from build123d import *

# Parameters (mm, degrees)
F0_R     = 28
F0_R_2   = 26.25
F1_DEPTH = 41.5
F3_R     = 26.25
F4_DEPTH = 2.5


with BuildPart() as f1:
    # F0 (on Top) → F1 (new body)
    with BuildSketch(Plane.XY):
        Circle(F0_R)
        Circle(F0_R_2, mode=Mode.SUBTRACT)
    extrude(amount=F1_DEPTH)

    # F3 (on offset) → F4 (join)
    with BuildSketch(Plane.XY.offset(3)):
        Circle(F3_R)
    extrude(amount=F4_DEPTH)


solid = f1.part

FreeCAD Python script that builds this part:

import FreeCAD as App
import Part
import Sketcher
from FreeCAD import Vector
Q = App.Units.Quantity

doc = App.newDocument("Part")
params = doc.addObject("Spreadsheet::Sheet", "Params")
for row, (alias, value) in enumerate([
    ("sketch1_diameter", "56 mm"),
    ("sketch1_diameter2", "52.5 mm"),
    ("pad1_length", "41.5 mm"),
    ("sketch2_diameter", "52.5 mm"),
    ("pad2_length", "2.5 mm"),
], start=1):
    params.set(f"A{row}", alias)
    params.set(f"B{row}", "=" + value)
    params.setAlias(f"B{row}", alias)

body = doc.addObject("PartDesign::Body", "Body")

sketch1 = doc.addObject("Sketcher::SketchObject", "Sketch")
body.addObject(sketch1)
sketch1.AttachmentSupport = (doc.XY_Plane, [""])
sketch1.MapMode = "FlatFace"
sketch1.addGeometry([
    Part.Circle(Vector(0, 0, 0), Vector(0, 0, 1), 28),
    Part.Circle(Vector(0, 0, 0), Vector(0, 0, 1), 26),
], False)
sketch1.addConstraint([
    Sketcher.Constraint("Coincident", 0, 3, -1, 1),
    Sketcher.Constraint("Coincident", 1, 3, -1, 1),
    Sketcher.Constraint("Diameter", 0, Q("56 mm")),
    Sketcher.Constraint("Diameter", 1, Q("52.5 mm")),
])
sketch1.setExpression("Constraints[2]", "Params.sketch1_diameter")
sketch1.setExpression("Constraints[3]", "Params.sketch1_diameter2")
pad1 = doc.addObject("PartDesign::Pad", "Pad")
body.addObject(pad1)
pad1.Profile = sketch1
pad1.setExpression("Length", "Params.pad1_length")

sketch2 = doc.addObject("Sketcher::SketchObject", "Sketch001")
body.addObject(sketch2)
sketch2.AttachmentSupport = (doc.XY_Plane, [""])
sketch2.MapMode = "FlatFace"
sketch2.AttachmentOffset = App.Placement(Vector(0, 0, 3), App.Rotation())
sketch2.addGeometry(Part.Circle(Vector(0, 0, 0), Vector(0, 0, 1), 26), False)
sketch2.addConstraint([
    Sketcher.Constraint("Coincident", 0, 3, -1, 1),
    Sketcher.Constraint("Diameter", 0, Q("52.5 mm")),
])
sketch2.setExpression("Constraints[1]", "Params.sketch2_diameter")
pad2 = doc.addObject("PartDesign::Pad", "Pad001")
body.addObject(pad2)
pad2.Profile = sketch2
pad2.setExpression("Length", "Params.pad2_length")

doc.recompute()
